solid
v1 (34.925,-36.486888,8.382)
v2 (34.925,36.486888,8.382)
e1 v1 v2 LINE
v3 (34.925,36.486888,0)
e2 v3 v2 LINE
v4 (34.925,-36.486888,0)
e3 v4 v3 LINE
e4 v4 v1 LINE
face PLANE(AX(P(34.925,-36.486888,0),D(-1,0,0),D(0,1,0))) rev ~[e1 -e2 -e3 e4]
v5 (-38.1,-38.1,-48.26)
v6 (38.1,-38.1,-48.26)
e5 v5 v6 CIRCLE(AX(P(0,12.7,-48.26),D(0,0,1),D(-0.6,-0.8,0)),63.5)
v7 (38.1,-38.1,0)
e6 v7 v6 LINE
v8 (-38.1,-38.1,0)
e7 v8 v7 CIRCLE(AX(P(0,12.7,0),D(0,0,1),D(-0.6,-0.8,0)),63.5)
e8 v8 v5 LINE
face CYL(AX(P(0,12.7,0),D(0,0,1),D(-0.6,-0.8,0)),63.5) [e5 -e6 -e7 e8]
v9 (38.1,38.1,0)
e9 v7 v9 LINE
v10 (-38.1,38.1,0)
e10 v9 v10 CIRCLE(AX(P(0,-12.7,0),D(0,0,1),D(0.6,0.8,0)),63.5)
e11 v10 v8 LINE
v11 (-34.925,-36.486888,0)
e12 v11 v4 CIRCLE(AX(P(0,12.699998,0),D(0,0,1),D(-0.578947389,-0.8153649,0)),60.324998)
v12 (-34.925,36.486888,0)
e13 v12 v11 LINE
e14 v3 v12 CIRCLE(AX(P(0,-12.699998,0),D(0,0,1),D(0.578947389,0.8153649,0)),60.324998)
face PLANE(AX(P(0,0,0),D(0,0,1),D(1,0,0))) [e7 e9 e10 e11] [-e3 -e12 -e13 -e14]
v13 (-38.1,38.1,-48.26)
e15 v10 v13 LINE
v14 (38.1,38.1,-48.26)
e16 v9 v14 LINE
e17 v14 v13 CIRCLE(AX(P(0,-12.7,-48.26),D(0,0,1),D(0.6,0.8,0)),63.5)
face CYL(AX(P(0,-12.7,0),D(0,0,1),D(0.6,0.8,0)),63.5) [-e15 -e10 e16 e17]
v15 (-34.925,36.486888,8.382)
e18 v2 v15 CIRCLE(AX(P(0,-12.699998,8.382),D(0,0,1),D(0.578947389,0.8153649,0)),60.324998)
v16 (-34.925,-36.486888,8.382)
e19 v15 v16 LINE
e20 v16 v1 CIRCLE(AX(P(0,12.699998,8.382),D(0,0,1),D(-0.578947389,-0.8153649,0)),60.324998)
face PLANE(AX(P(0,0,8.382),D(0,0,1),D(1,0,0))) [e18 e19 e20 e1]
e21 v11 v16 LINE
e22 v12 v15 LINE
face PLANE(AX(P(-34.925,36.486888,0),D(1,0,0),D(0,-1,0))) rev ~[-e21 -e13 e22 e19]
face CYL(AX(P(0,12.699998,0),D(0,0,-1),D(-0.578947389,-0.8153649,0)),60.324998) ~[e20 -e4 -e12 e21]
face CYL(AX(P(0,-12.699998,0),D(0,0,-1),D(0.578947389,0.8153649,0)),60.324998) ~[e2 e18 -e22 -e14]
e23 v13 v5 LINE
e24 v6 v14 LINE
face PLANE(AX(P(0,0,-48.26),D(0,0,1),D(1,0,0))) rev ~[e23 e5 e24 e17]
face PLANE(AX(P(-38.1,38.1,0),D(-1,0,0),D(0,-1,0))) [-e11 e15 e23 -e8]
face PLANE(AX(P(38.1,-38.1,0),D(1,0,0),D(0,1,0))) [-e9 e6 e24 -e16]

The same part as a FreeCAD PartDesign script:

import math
import FreeCAD as App
import Part
import Sketcher

V = App.Vector
Q = App.Units.Quantity

doc = App.newDocument("Part")
body = doc.addObject("PartDesign::Body", "Body")

# Sketch on XY plane
sketch1 = body.newObject("Sketcher::SketchObject", "Sketch")
sketch1.AttachmentSupport = (doc.getObject("XY_Plane"), [""])
sketch1.MapMode = "FlatFace"
sketch1.addGeometry([
    Part.ArcOfCircle(Part.Circle(V(0, 13, 0), V(0, 0, 1), 64), math.radians(-127), math.radians(-53)),
    Part.LineSegment(V(38, -38, 0), V(38, 38, 0)),
    Part.ArcOfCircle(Part.Circle(V(0, -13, 0), V(0, 0, 1), 64), math.radians(53), math.radians(127)),
    Part.LineSegment(V(-38, 38, 0), V(-38, -38, 0)),
], False)
sketch1.addConstraint([
    Sketcher.Constraint("Coincident", 0, 2, 1, 1),
    Sketcher.Constraint("Coincident", 1, 2, 2, 1),
    Sketcher.Constraint("Coincident", 2, 2, 3, 1),
    Sketcher.Constraint("Coincident", 3, 2, 0, 1),
    Sketcher.Constraint("Vertical", 1),
    Sketcher.Constraint("Vertical", 3),
    Sketcher.Constraint("Equal", 0, 2),
    Sketcher.Constraint("Symmetric", 0, 3, 2, 3, -1, 1),
    Sketcher.Constraint("Symmetric", 1, 2, 2, 2, -2),
    Sketcher.Constraint("Radius", 0, Q("2.5 in")),
    Sketcher.Constraint("DistanceY", 1, 1, 1, 2, Q("3 in")),
    Sketcher.Constraint("DistanceY", 2, 3, 0, 3, Q("1 in")),
])
pad1 = body.newObject("PartDesign::Pad", "Pad")
pad1.Profile = sketch1
pad1.Length = Q("1.9 in")
pad1.Reversed = True

# Sketch on XY plane
sketch2 = body.newObject("Sketcher::SketchObject", "Sketch001")
sketch2.AttachmentSupport = (doc.getObject("XY_Plane"), [""])
sketch2.MapMode = "FlatFace"
sketch2.addGeometry([
    Part.LineSegment(V(-35, 36, 0), V(-35, -36, 0)),
    Part.ArcOfCircle(Part.Circle(V(0, 13, 0), V(0, 0, 1), 60), math.radians(-125), math.radians(-55)),
    Part.LineSegment(V(35, -36, 0), V(35, 36, 0)),
    Part.ArcOfCircle(Part.Circle(V(0, -13, 0), V(0, 0, 1), 60), math.radians(55), math.radians(125)),
], False)
sketch2.addConstraint([
    Sketcher.Constraint("Coincident", 0, 2, 1, 1),
    Sketcher.Constraint("Coincident", 1, 2, 2, 1),
    Sketcher.Constraint("Coincident", 2, 2, 3, 1),
    Sketcher.Constraint("Coincident", 3, 2, 0, 1),
    Sketcher.Constraint("Vertical", 0),
    Sketcher.Constraint("Vertical", 2),
    Sketcher.Constraint("Equal", 1, 3),
    Sketcher.Constraint("Symmetric", 1, 3, 3, 3, -1, 1),
    Sketcher.Constraint("Symmetric", 0, 2, 1, 2, -2),
    Sketcher.Constraint("Radius", 1, Q("2.3749999 in")),
    Sketcher.Constraint("DistanceY", 3, 3, 1, 3, Q("0.9999998 in")),
    Sketcher.Constraint("DistanceX", 0, 2, 1, 2, Q("2.75 in")),
])
pad2 = body.newObject("PartDesign::Pad", "Pad001")
pad2.Profile = sketch2
pad2.Length = Q("0.33 in")

doc.recompute()
